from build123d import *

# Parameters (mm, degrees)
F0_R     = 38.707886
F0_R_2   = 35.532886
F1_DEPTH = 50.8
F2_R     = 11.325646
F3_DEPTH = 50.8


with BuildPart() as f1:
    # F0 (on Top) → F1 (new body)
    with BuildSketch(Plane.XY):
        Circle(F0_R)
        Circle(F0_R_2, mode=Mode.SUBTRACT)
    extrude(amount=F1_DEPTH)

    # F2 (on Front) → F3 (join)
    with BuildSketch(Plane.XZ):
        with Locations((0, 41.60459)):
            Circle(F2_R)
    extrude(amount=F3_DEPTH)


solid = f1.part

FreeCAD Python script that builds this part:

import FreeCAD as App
import Part
import Sketcher
from FreeCAD import Vector

doc = App.newDocument("Part")
params = doc.addObject("Spreadsheet::Sheet", "Params")
for row, (alias, value) in enumerate([
    ("pad1_length", "2 in"),
    ("pad2_length", "2 in"),
], start=1):
    params.set(f"A{row}", alias)
    params.set(f"B{row}", "=" + value)
    params.setAlias(f"B{row}", alias)

body = doc.addObject("PartDesign::Body", "Body")

sketch1 = body.newObject("Sketcher::SketchObject", "Sketch")
sketch1.AttachmentSupport = (doc.getObject("XY_Plane"), [""])
sketch1.MapMode = "FlatFace"
sketch1.addGeometry([
    Part.Circle(Vector(0, 0, 0), Vector(0, 0, 1), 39),
    Part.Circle(Vector(0, 0, 0), Vector(0, 0, 1), 36),
], False)
sketch1.addConstraint([
    Sketcher.Constraint("Coincident", 0, 3, -1, 1),
    Sketcher.Constraint("Coincident", 1, 3, -1, 1),
    Sketcher.Constraint("Diameter", 1, 71.065772),
    Sketcher.Constraint("Diameter", 0, 77.415772),
])
pad1 = body.newObject("PartDesign::Pad", "Pad")
pad1.Profile = sketch1
pad1.setExpression("Length", "Params.pad1_length")

sketch2 = body.newObject("Sketcher::SketchObject", "Sketch001")
sketch2.AttachmentSupport = (doc.getObject("XZ_Plane"), [""])
sketch2.MapMode = "FlatFace"
sketch2.addGeometry(Part.Circle(Vector(0, 42, 0), Vector(0, 0, 1), 11), False)
sketch2.addConstraint([
    Sketcher.Constraint("PointOnObject", 0, 3, -2),
    Sketcher.Constraint("Diameter", 0, 22.651292),
    Sketcher.Constraint("DistanceY", -1, 1, 0, 3, 41.60459),
])
pad2 = body.newObject("PartDesign::Pad", "Pad001")
pad2.Profile = sketch2
pad2.setExpression("Length", "Params.pad2_length")

doc.recompute()
